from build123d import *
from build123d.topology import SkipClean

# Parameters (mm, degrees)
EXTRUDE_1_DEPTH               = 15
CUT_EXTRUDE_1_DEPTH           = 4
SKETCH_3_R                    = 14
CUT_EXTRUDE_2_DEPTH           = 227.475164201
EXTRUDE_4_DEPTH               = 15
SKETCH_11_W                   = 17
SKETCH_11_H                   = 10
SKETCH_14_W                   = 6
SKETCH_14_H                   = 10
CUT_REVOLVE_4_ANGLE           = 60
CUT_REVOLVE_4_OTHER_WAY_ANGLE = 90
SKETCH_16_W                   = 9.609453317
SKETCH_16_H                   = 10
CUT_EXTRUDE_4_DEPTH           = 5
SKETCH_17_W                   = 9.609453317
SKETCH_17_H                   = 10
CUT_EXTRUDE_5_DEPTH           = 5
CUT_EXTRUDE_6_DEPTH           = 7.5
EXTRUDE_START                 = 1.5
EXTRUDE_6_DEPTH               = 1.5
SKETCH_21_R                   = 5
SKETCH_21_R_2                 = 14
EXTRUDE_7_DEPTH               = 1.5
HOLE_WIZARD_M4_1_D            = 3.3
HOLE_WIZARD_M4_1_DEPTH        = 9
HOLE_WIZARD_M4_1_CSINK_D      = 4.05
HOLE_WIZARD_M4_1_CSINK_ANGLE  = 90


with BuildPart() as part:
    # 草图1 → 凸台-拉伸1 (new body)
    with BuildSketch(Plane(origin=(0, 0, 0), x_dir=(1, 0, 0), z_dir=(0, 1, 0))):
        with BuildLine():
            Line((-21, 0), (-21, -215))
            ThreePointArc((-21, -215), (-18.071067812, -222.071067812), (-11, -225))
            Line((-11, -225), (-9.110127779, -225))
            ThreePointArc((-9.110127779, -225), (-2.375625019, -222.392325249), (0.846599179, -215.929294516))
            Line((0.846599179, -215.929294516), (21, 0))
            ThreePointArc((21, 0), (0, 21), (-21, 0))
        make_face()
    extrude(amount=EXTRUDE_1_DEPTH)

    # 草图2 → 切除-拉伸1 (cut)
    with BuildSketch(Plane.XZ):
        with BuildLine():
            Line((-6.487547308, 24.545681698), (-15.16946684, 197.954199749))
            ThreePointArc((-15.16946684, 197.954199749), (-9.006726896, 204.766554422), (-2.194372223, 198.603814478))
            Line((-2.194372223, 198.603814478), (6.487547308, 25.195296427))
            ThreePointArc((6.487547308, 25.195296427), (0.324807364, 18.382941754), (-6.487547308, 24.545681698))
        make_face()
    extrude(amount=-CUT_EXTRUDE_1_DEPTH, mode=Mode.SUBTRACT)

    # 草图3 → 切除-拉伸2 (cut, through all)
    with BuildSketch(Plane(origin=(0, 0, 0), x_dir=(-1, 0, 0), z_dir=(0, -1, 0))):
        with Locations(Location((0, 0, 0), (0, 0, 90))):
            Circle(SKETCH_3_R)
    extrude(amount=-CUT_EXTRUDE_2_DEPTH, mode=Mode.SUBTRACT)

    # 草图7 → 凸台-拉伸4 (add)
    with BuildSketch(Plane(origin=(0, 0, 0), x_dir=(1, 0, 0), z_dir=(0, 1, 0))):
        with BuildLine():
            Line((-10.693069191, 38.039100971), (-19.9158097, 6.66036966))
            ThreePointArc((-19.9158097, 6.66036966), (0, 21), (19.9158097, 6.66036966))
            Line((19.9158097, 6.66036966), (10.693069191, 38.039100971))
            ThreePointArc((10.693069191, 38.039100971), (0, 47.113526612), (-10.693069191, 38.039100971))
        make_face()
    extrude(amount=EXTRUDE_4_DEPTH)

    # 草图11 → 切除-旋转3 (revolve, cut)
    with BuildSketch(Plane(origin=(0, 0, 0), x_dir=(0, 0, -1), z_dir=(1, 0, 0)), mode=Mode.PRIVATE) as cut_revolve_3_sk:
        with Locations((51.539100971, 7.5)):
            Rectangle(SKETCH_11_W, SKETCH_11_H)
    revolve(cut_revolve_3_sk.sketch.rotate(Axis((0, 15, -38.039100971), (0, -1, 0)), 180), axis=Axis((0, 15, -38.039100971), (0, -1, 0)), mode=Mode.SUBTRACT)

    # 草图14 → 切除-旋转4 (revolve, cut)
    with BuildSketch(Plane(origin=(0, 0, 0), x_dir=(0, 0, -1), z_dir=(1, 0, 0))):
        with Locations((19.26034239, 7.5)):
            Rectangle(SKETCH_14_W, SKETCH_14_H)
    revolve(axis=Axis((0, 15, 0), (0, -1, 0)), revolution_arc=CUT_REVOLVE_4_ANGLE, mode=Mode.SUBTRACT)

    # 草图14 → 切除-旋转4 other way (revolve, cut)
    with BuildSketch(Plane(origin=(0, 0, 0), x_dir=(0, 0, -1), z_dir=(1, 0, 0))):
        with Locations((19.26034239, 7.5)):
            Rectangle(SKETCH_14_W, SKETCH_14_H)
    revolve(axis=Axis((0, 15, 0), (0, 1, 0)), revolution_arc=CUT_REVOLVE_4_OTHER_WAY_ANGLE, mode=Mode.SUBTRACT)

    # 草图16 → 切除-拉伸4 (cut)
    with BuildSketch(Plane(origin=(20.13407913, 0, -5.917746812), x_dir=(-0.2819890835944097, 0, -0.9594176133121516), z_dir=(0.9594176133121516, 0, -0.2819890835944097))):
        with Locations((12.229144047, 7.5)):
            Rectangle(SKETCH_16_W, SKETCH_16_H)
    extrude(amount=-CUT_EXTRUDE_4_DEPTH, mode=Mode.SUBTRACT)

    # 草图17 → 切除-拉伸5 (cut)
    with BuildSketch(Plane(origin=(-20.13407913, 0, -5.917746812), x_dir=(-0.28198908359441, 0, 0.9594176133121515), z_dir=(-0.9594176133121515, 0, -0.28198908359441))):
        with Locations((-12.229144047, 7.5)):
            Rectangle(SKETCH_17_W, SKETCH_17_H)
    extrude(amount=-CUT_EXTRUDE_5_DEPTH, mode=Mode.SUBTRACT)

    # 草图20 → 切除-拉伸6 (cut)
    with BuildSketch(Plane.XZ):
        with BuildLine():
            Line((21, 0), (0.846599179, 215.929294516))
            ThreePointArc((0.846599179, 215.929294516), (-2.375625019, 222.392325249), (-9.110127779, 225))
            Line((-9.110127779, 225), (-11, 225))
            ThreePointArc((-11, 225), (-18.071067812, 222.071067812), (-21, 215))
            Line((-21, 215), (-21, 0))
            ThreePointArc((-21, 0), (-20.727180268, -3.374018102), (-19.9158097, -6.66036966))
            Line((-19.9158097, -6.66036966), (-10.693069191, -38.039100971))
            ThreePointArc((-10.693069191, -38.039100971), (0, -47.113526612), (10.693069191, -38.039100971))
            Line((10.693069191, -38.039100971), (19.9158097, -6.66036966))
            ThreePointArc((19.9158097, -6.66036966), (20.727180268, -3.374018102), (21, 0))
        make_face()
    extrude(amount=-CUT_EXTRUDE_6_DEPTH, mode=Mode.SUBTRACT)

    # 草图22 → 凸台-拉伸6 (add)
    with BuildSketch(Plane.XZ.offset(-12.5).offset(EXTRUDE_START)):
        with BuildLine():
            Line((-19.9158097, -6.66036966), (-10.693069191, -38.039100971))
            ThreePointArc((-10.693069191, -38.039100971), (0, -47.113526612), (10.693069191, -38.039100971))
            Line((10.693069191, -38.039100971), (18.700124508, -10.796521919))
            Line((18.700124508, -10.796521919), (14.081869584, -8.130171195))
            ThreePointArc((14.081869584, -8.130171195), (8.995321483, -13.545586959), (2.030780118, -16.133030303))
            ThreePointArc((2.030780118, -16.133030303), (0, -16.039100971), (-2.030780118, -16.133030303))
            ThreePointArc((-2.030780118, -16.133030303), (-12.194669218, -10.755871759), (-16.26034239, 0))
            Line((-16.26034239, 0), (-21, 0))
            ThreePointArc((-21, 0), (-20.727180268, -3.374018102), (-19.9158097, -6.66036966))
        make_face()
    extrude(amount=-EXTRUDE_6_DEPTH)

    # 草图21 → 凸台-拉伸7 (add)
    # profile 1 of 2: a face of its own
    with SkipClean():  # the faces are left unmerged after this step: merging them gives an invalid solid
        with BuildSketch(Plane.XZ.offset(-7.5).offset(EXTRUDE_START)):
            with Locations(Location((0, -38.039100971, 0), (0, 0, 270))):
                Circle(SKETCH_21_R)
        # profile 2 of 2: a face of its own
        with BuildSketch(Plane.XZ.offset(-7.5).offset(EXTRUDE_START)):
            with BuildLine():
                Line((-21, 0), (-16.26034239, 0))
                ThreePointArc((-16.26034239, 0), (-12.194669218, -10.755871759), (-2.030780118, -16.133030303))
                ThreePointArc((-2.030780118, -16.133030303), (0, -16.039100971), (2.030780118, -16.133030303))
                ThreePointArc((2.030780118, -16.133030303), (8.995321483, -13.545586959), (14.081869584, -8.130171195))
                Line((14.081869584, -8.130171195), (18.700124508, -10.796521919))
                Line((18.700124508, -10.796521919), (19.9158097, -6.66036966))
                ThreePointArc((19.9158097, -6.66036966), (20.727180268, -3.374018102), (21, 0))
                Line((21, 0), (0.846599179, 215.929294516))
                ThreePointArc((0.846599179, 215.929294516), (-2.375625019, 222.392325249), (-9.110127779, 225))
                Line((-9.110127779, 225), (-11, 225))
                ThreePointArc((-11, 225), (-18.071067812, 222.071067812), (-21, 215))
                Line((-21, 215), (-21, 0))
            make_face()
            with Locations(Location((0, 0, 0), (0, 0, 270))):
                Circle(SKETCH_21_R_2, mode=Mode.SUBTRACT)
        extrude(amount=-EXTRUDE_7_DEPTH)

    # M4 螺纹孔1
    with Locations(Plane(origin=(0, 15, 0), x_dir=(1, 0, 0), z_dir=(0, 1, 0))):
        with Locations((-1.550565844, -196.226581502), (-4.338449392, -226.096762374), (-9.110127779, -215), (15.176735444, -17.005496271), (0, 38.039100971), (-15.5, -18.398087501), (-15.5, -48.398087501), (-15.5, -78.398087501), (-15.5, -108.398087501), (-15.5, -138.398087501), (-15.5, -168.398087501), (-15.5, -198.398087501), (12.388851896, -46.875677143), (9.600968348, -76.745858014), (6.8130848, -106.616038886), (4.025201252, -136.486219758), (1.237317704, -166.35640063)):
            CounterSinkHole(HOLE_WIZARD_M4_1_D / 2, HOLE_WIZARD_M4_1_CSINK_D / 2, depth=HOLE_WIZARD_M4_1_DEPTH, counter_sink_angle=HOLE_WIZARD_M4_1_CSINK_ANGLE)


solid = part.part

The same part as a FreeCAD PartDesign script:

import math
import FreeCAD as App
import Part
import Sketcher

V = App.Vector
Q = App.Units.Quantity

doc = App.newDocument("Part")
params = doc.addObject("Spreadsheet::Sheet", "Params")
for row, (alias, value) in enumerate([
    ("sketch1_radius", "10 mm"),
    ("sketch1_radius2", "21 mm"),
    ("sketch1_height", "215 mm"),
    ("pad1_length", "15 mm"),
    ("pocket1_length", "4 mm"),
    ("sketch3_diameter", "28 mm"),
    ("sketch4_radius", "21 mm"),
    ("pad2_length", "15 mm"),
    ("sketch5_width", "10 mm"),
    ("sketch5_height", "17 mm"),
    ("groove_angle", "360 deg"),
    ("sketch6_width", "10 mm"),
    ("sketch6_height", "6 mm"),
    ("groove2_angle", "60 deg"),
    ("sketch7_width", "10 mm"),
    ("sketch7_height", "6 mm"),
    ("groove3_angle", "90 deg"),
    ("sketch8_height", "10 mm"),
    ("pocket3_length", "5 mm"),
    ("sketch9_height", "10 mm"),
    ("pocket4_length", "5 mm"),
    ("sketch10_radius", "10 mm"),
    ("sketch10_radius2", "21 mm"),
    ("sketch10_height", "215 mm"),
    ("pocket5_length", "7.5 mm"),
    ("sketch11_radius", "22 mm"),
    ("sketch11_radius2", "21 mm"),
    ("pad3_length", "1.5 mm"),
    ("sketch12_diameter", "10 mm"),
    ("sketch12_diameter2", "28 mm"),
    ("sketch12_radius", "22 mm"),
    ("sketch12_radius2", "21 mm"),
    ("sketch12_radius3", "10 mm"),
    ("pad4_length", "1.5 mm"),
    ("sketch13_diameter", "3.3 mm"),
    ("hole_diameter", "3.3 mm"),
    ("hole_depth", "9 mm"),
    ("hole_csink_diameter", "4.05 mm"),
], start=1):
    params.set(f"A{row}", alias)
    params.set(f"B{row}", "=" + value)
    params.setAlias(f"B{row}", alias)

body = doc.addObject("PartDesign::Body", "Body")

# Sketch on XZ plane
sketch1 = doc.addObject("Sketcher::SketchObject", "Sketch")
body.addObject(sketch1)
sketch1.AttachmentSupport = (doc.XZ_Plane, [""])
sketch1.MapMode = "FlatFace"
sketch1.addGeometry([
    Part.LineSegment(V(-21, 0, 0), V(-21, 215, 0)),  # 0
    Part.ArcOfCircle(Part.Circle(V(-11, 215, 0), V(0, 0, 1), 10), math.radians(90), math.radians(180)),  # 1
    Part.LineSegment(V(-11, 225, 0), V(-9.1, 225, 0)),  # 2
    Part.ArcOfCircle(Part.Circle(V(-9.1, 215, 0), V(0, 0, 1), 10), math.radians(5), math.radians(90)),  # 3
    Part.LineSegment(V(0.8, 215.9, 0), V(21, 0, 0)),  # 4
    Part.ArcOfCircle(Part.Circle(V(0, 0, 0), V(0, 0, 1), 21), math.radians(180), math.radians(360)),  # 5
], False)
sketch1.addConstraint([
    Sketcher.Constraint("Tangent", 0, 2, 1, 2),
    Sketcher.Constraint("Tangent", 1, 1, 2, 1),
    Sketcher.Constraint("Tangent", 2, 2, 3, 2),
    Sketcher.Constraint("Tangent", 3, 1, 4, 1),
    Sketcher.Constraint("Coincident", 4, 2, 5, 2),
    Sketcher.Constraint("Tangent", 5, 1, 0, 1),
    Sketcher.Constraint("Vertical", 0),
    Sketcher.Constraint("Horizontal", 2),
    Sketcher.Constraint("Coincident", 5, 3, -1, 1),
    Sketcher.Constraint("Equal", 1, 3),
    Sketcher.Constraint("PointOnObject", 4, 2, -1),
    Sketcher.Constraint("Radius", 1, 10.0),
    Sketcher.Constraint("Radius", 5, 21.0),
    Sketcher.Constraint("DistanceY", 0, 1, 0, 2, 215.0),
    Sketcher.Constraint("DistanceX", -1, 1, 3, 1, 0.846599),
])
sketch1.setExpression("Constraints[11]", "Params.sketch1_radius")
sketch1.setExpression("Constraints[12]", "Params.sketch1_radius2")
sketch1.setExpression("Constraints[13]", "Params.sketch1_height")
pad1 = doc.addObject("PartDesign::Pad", "Pad")
body.addObject(pad1)
pad1.Profile = sketch1
pad1.setExpression("Length", "Params.pad1_length")
pad1.Reversed = True

# Sketch on XZ plane
sketch2 = doc.addObject("Sketcher::SketchObject", "Sketch001")
body.addObject(sketch2)
sketch2.AttachmentSupport = (doc.XZ_Plane, [""])
sketch2.MapMode = "FlatFace"
sketch2.addGeometry([
    Part.LineSegment(V(-15, 198, 0), V(-6, 25, 0)),
    Part.ArcOfCircle(Part.Circle(V(0, 25, 0), V(0, 0, 1), 6), math.radians(-177), math.radians(3)),
    Part.LineSegment(V(6, 25, 0), V(-2, 199, 0)),
    Part.ArcOfCircle(Part.Circle(V(-9, 198, 0), V(0, 0, 1), 6), math.radians(3), math.radians(183)),
], False)
sketch2.addConstraint([
    Sketcher.Constraint("Tangent", 0, 2, 1, 1),
    Sketcher.Constraint("Tangent", 1, 2, 2, 1),
    Sketcher.Constraint("Tangent", 2, 2, 3, 1),
    Sketcher.Constraint("Tangent", 3, 2, 0, 1),
    Sketcher.Constraint("Equal", 1, 3),
    Sketcher.Constraint("PointOnObject", 1, 3, -2),
    Sketcher.Constraint("Radius", 1, 6.495673),
    Sketcher.Constraint("DistanceY", -1, 1, 3, 2, 197.9542),
    Sketcher.Constraint("DistanceY", -1, 1, 1, 3, 24.870489),
    Sketcher.Constraint("DistanceX", 3, 3, -1, 1, 8.68192),
])
pocket1 = doc.addObject("PartDesign::Pocket", "Pocket")
body.addObject(pocket1)
pocket1.Profile = sketch2
pocket1.setExpression("Length", "Params.pocket1_length")

# Sketch on XZ plane
sketch3 = doc.addObject("Sketcher::SketchObject", "Sketch002")
body.addObject(sketch3)
sketch3.AttachmentSupport = (doc.XZ_Plane, [""])
sketch3.MapMode = "FlatFace"
sketch3.addGeometry(Part.Circle(V(0, 0, 0), V(0, 0, 1), 14), False)
sketch3.addConstraint([
    Sketcher.Constraint("Coincident", 0, 3, -1, 1),
    Sketcher.Constraint("Diameter", 0, 28.0),
])
sketch3.setExpression("Constraints[1]", "Params.sketch3_diameter")
pocket2 = doc.addObject("PartDesign::Pocket", "Pocket001")
body.addObject(pocket2)
pocket2.Profile = sketch3
pocket2.Type = "ThroughAll"

# Sketch on XZ plane
sketch4 = doc.addObject("Sketcher::SketchObject", "Sketch003")
body.addObject(sketch4)
sketch4.AttachmentSupport = (doc.XZ_Plane, [""])
sketch4.MapMode = "FlatFace"
sketch4.addGeometry([
    Part.LineSegment(V(-11, -38, 0), V(-20, -7, 0)),
    Part.ArcOfCircle(Part.Circle(V(0, 0, 0), V(0, 0, 1), 21), math.radians(-162), math.radians(-18)),
    Part.LineSegment(V(20, -7, 0), V(11, -38, 0)),
    Part.ArcOfCircle(Part.Circle(V(0, -36, 0), V(0, 0, 1), 11), math.radians(-171), math.radians(-9)),
], False)
sketch4.addConstraint([
    Sketcher.Constraint("Coincident", 0, 2, 1, 1),
    Sketcher.Constraint("Coincident", 1, 2, 2, 1),
    Sketcher.Constraint("Coincident", 2, 2, 3, 2),
    Sketcher.Constraint("Coincident", 3, 1, 0, 1),
    Sketcher.Constraint("Coincident", 1, 3, -1, 1),
    Sketcher.Constraint("Symmetric", 2, 2, 3, 1, -2),
    Sketcher.Constraint("Horizontal", 0, 2, 1, 2),
    Sketcher.Constraint("Radius", 1, 21.0),
    Sketcher.Constraint("Radius", 3, 10.837431),
    Sketcher.Constraint("DistanceY", 2, 2, -1, 1, 38.039101),
    Sketcher.Constraint("Distance", 0, 32.70602),
    Sketcher.Constraint("DistanceX", 0, 2, -1, 1, 19.91581),
])
sketch4.setExpression("Constraints[7]", "Params.sketch4_radius")
pad2 = doc.addObject("PartDesign::Pad", "Pad001")
body.addObject(pad2)
pad2.Profile = sketch4
pad2.setExpression("Length", "Params.pad2_length")
pad2.Reversed = True

# Sketch on YZ plane
sketch5 = doc.addObject("Sketcher::SketchObject", "Sketch004")
body.addObject(sketch5)
sketch5.AttachmentSupport = (doc.YZ_Plane, [""])
sketch5.MapMode = "FlatFace"
sketch5.addGeometry([
    Part.LineSegment(V(12, -43, 0), V(2, -43, 0)),
    Part.LineSegment(V(2, -43, 0), V(2, -60, 0)),
    Part.LineSegment(V(2, -60, 0), V(12, -60, 0)),
    Part.LineSegment(V(12, -60, 0), V(12, -43, 0)),
], False)
sketch5.addGeometry(Part.LineSegment(V(12, -38, 0), V(2, -38, 0)), True)  # axis
sketch5.addConstraint([
    Sketcher.Constraint("Coincident", 0, 2, 1, 1),
    Sketcher.Constraint("Coincident", 1, 2, 2, 1),
    Sketcher.Constraint("Coincident", 2, 2, 3, 1),
    Sketcher.Constraint("Coincident", 3, 2, 0, 1),
    Sketcher.Constraint("Horizontal", 0),
    Sketcher.Constraint("Vertical", 1),
    Sketcher.Constraint("Horizontal", 2),
    Sketcher.Constraint("Vertical", 3),
    Sketcher.Constraint("Horizontal", 4),
    Sketcher.Constraint("Vertical", 3, 2, 4, 1),
    Sketcher.Constraint("Vertical", 1, 2, 4, 2),
    Sketcher.Constraint("DistanceX", 0, 2, 0, 1, 10.0),
    Sketcher.Constraint("DistanceY", 1, 2, 1, 1, 17.0),
    Sketcher.Constraint("DistanceY", 3, 2, 4, 1, 5.0),
    Sketcher.Constraint("DistanceX", -1, 1, 0, 2, 2.5),
    Sketcher.Constraint("DistanceY", 0, 2, -1, 1, 43.039101),
])
sketch5.setExpression("Constraints[11]", "Params.sketch5_width")
sketch5.setExpression("Constraints[12]", "Params.sketch5_height")
groove = doc.addObject("PartDesign::Groove", "Groove")
body.addObject(groove)
groove.Profile = sketch5
groove.ReferenceAxis = (sketch5, ["Axis0"])
groove.setExpression("Angle", "Params.groove_angle")

# Sketch on YZ plane
sketch6 = doc.addObject("Sketcher::SketchObject", "Sketch005")
body.addObject(sketch6)
sketch6.AttachmentSupport = (doc.YZ_Plane, [""])
sketch6.MapMode = "FlatFace"
sketch6.addGeometry([
    Part.LineSegment(V(12, -16, 0), V(2, -16, 0)),
    Part.LineSegment(V(2, -16, 0), V(2, -22, 0)),
    Part.LineSegment(V(2, -22, 0), V(12, -22, 0)),
    Part.LineSegment(V(12, -22, 0), V(12, -16, 0)),
], False)
sketch6.addConstraint([
    Sketcher.Constraint("Coincident", 0, 2, 1, 1),
    Sketcher.Constraint("Coincident", 1, 2, 2, 1),
    Sketcher.Constraint("Coincident", 2, 2, 3, 1),
    Sketcher.Constraint("Coincident", 3, 2, 0, 1),
    Sketcher.Constraint("Horizontal", 0),
    Sketcher.Constraint("Vertical", 1),
    Sketcher.Constraint("Horizontal", 2),
    Sketcher.Constraint("Vertical", 3),
    Sketcher.Constraint("DistanceX", 0, 2, 0, 1, 10.0),
    Sketcher.Constraint("DistanceY", 1, 2, 1, 1, 6.0),
    Sketcher.Constraint("DistanceX", -1, 1, 0, 2, 2.5),
    Sketcher.Constraint("DistanceY", 0, 2, -1, 1, 16.260342),
])
sketch6.setExpression("Constraints[8]", "Params.sketch6_width")
sketch6.setExpression("Constraints[9]", "Params.sketch6_height")
groove2 = doc.addObject("PartDesign::Groove", "Groove001")
body.addObject(groove2)
groove2.Profile = sketch6
groove2.ReferenceAxis = (sketch6, ["H_Axis"])
groove2.setExpression("Angle", "Params.groove2_angle")
groove2.Reversed = True

# Sketch on YZ plane
sketch7 = doc.addObject("Sketcher::SketchObject", "Sketch006")
body.addObject(sketch7)
sketch7.AttachmentSupport = (doc.YZ_Plane, [""])
sketch7.MapMode = "FlatFace"
sketch7.addGeometry([
    Part.LineSegment(V(12, -16, 0), V(2, -16, 0)),
    Part.LineSegment(V(2, -16, 0), V(2, -22, 0)),
    Part.LineSegment(V(2, -22, 0), V(12, -22, 0)),
    Part.LineSegment(V(12, -22, 0), V(12, -16, 0)),
], False)
sketch7.addConstraint([
    Sketcher.Constraint("Coincident", 0, 2, 1, 1),
    Sketcher.Constraint("Coincident", 1, 2, 2, 1),
    Sketcher.Constraint("Coincident", 2, 2, 3, 1),
    Sketcher.Constraint("Coincident", 3, 2, 0, 1),
    Sketcher.Constraint("Horizontal", 0),
    Sketcher.Constraint("Vertical", 1),
    Sketcher.Constraint("Horizontal", 2),
    Sketcher.Constraint("Vertical", 3),
    Sketcher.Constraint("DistanceX", 0, 2, 0, 1, 10.0),
    Sketcher.Constraint("DistanceY", 1, 2, 1, 1, 6.0),
    Sketcher.Constraint("DistanceX", -1, 1, 0, 2, 2.5),
    Sketcher.Constraint("DistanceY", 0, 2, -1, 1, 16.260342),
])
sketch7.setExpression("Constraints[8]", "Params.sketch7_width")
sketch7.setExpression("Constraints[9]", "Params.sketch7_height")
groove3 = doc.addObject("PartDesign::Groove", "Groove002")
body.addObject(groove3)
groove3.Profile = sketch7
groove3.ReferenceAxis = (sketch7, ["H_Axis"])
groove3.setExpression("Angle", "Params.groove3_angle")

# Sketch on an angled plane
sketch8 = doc.addObject("Sketcher::SketchObject", "Sketch007")
body.addObject(sketch8)
sketch8.Placement = App.Placement(V(20.134079, 0, -5.917747), App.Rotation(V(-0.281989084, 0, -0.959417613), V(0, 1, 0), V(0.959417613, 0, -0.281989084), "ZXY"))
sketch8.addGeometry([
    Part.LineSegment(V(7, 12, 0), V(7, 2, 0)),
    Part.LineSegment(V(7, 2, 0), V(17, 2, 0)),
    Part.LineSegment(V(17, 2, 0), V(17, 12, 0)),
    Part.LineSegment(V(17, 12, 0), V(7, 12, 0)),
], False)
sketch8.addConstraint([
    Sketcher.Constraint("Coincident", 0, 2, 1, 1),
    Sketcher.Constraint("Coincident", 1, 2, 2, 1),
    Sketcher.Constraint("Coincident", 2, 2, 3, 1),
    Sketcher.Constraint("Coincident", 3, 2, 0, 1),
    Sketcher.Constraint("Vertical", 0),
    Sketcher.Constraint("Horizontal", 1),
    Sketcher.Constraint("Vertical", 2),
    Sketcher.Constraint("Horizontal", 3),
    Sketcher.Constraint("DistanceY", 0, 2, 0, 1, 10.0),
    Sketcher.Constraint("DistanceY", -1, 1, 0, 2, 2.5),
    Sketcher.Constraint("DistanceX", 1, 1, 1, 2, 9.609453),
    Sketcher.Constraint("DistanceX", -1, 1, 1, 2, 17.033871),
])
sketch8.setExpression("Constraints[8]", "Params.sketch8_height")
pocket3 = doc.addObject("PartDesign::Pocket", "Pocket002")
body.addObject(pocket3)
pocket3.Profile = sketch8
pocket3.setExpression("Length", "Params.pocket3_length")

# Sketch on an angled plane
sketch9 = doc.addObject("Sketcher::SketchObject", "Sketch008")
body.addObject(sketch9)
sketch9.Placement = App.Placement(V(-20.134079, 0, -5.917747), App.Rotation(V(-0.281989084, 0, 0.959417613), V(0, 1, 0), V(-0.959417613, 0, -0.281989084), "ZXY"))
sketch9.addGeometry([
    Part.LineSegment(V(-17, 12, 0), V(-17, 2, 0)),
    Part.LineSegment(V(-17, 2, 0), V(-7, 2, 0)),
    Part.LineSegment(V(-7, 2, 0), V(-7, 12, 0)),
    Part.LineSegment(V(-7, 12, 0), V(-17, 12, 0)),
], False)
sketch9.addConstraint([
    Sketcher.Constraint("Coincident", 0, 2, 1, 1),
    Sketcher.Constraint("Coincident", 1, 2, 2, 1),
    Sketcher.Constraint("Coincident", 2, 2, 3, 1),
    Sketcher.Constraint("Coincident", 3, 2, 0, 1),
    Sketcher.Constraint("Vertical", 0),
    Sketcher.Constraint("Horizontal", 1),
    Sketcher.Constraint("Vertical", 2),
    Sketcher.Constraint("Horizontal", 3),
    Sketcher.Constraint("DistanceY", 0, 2, 0, 1, 10.0),
    Sketcher.Constraint("DistanceY", -1, 1, 0, 2, 2.5),
    Sketcher.Constraint("DistanceX", 1, 1, 1, 2, 9.609453),
    Sketcher.Constraint("DistanceX", 0, 2, -1, 1, 17.033871),
])
sketch9.setExpression("Constraints[8]", "Params.sketch9_height")
pocket4 = doc.addObject("PartDesign::Pocket", "Pocket003")
body.addObject(pocket4)
pocket4.Profile = sketch9
pocket4.setExpression("Length", "Params.pocket4_length")

# Sketch on XZ plane
sketch10 = doc.addObject("Sketcher::SketchObject", "Sketch009")
body.addObject(sketch10)
sketch10.AttachmentSupport = (doc.XZ_Plane, [""])
sketch10.MapMode = "FlatFace"
sketch10.addGeometry([
    Part.LineSegment(V(21, 0, 0), V(0.8, 215.9, 0)),  # 0
    Part.ArcOfCircle(Part.Circle(V(-9.1, 215, 0), V(0, 0, 1), 10), math.radians(5), math.radians(90)),  # 1
    Part.LineSegment(V(-9.1, 225, 0), V(-11, 225, 0)),  # 2
    Part.ArcOfCircle(Part.Circle(V(-11, 215, 0), V(0, 0, 1), 10), math.radians(90), math.radians(180)),  # 3
    Part.LineSegment(V(-21, 215, 0), V(-21, 0, 0)),  # 4
    Part.ArcOfCircle(Part.Circle(V(0, 0, 0), V(0, 0, 1), 21), math.radians(180), math.radians(198.49)),  # 5
    Part.LineSegment(V(-19.9, -6.7, 0), V(-10.7, -38, 0)),  # 6
    Part.ArcOfCircle(Part.Circle(V(0, -36.3, 0), V(0, 0, 1), 10.8), math.radians(-171), math.radians(-9)),  # 7
    Part.LineSegment(V(10.7, -38, 0), V(19.9, -6.7, 0)),  # 8
    Part.ArcOfCircle(Part.Circle(V(0, 0, 0), V(0, 0, 1), 21), math.radians(-18.49), math.radians(0)),  # 9
], False)
sketch10.addConstraint([
    Sketcher.Constraint("Tangent", 0, 2, 1, 1),
    Sketcher.Constraint("Tangent", 1, 2, 2, 1),
    Sketcher.Constraint("Tangent", 2, 2, 3, 1),
    Sketcher.Constraint("Tangent", 3, 2, 4, 1),
    Sketcher.Constraint("Tangent", 4, 2, 5, 1),
    Sketcher.Constraint("Coincident", 5, 2, 6, 1),
    Sketcher.Constraint("Coincident", 6, 2, 7, 1),
    Sketcher.Constraint("Coincident", 7, 2, 8, 1),
    Sketcher.Constraint("Coincident", 8, 2, 9, 1),
    Sketcher.Constraint("Coincident", 9, 2, 0, 1),
    Sketcher.Constraint("Horizontal", 2),
    Sketcher.Constraint("Vertical", 4),
    Sketcher.Constraint("Coincident", 5, 3, -1, 1),
    Sketcher.Constraint("Coincident", 9, 3, -1, 1),
    Sketcher.Constraint("Equal", 1, 3),
    Sketcher.Constraint("Equal", 5, 9),
    Sketcher.Constraint("Symmetric", 6, 2, 7, 2, -2),
    Sketcher.Constraint("PointOnObject", 9, 2, -1),
    Sketcher.Constraint("Horizontal", 5, 2, 8, 2),
    Sketcher.Constraint("Radius", 1, 10.0),
    Sketcher.Constraint("Radius", 5, 21.0),
    Sketcher.Constraint("DistanceY", 4, 2, 4, 1, 215.0),
    Sketcher.Constraint("Radius", 7, 10.837431),
    Sketcher.Constraint("DistanceX", -1, 1, 0, 2, 0.846599),
    Sketcher.Constraint("DistanceY", 6, 2, -1, 1, 38.039101),
    Sketcher.Constraint("Distance", 6, 32.70602),
    Sketcher.Constraint("DistanceX", 5, 2, -1, 1, 19.91581),
])
sketch10.setExpression("Constraints[19]", "Params.sketch10_radius")
sketch10.setExpression("Constraints[20]", "Params.sketch10_radius2")
sketch10.setExpression("Constraints[21]", "Params.sketch10_height")
pocket5 = doc.addObject("PartDesign::Pocket", "Pocket004")
body.addObject(pocket5)
pocket5.Profile = sketch10
pocket5.setExpression("Length", "Params.pocket5_length")

# Sketch on XZ plane
sketch11 = doc.addObject("Sketcher::SketchObject", "Sketch010")
body.addObject(sketch11)
sketch11.AttachmentSupport = (doc.XZ_Plane, [""])
sketch11.MapMode = "FlatFace"
sketch11.AttachmentOffset = App.Placement(V(0, 0, -11), App.Rotation())
sketch11.addGeometry([
    Part.LineSegment(V(-19.9, -6.7, 0), V(-10.7, -38, 0)),  # 0
    Part.ArcOfCircle(Part.Circle(V(0, -36.3, 0), V(0, 0, 1), 10.8), math.radians(-171), math.radians(-9)),  # 1
    Part.LineSegment(V(10.7, -38, 0), V(18.7, -10.8, 0)),  # 2
    Part.LineSegment(V(18.7, -10.8, 0), V(14.1, -8.1, 0)),  # 3
    Part.ArcOfCircle(Part.Circle(V(0, 0, 0), V(0, 0, 1), 16.3), math.radians(-83), math.radians(-30)),  # 4
    Part.ArcOfCircle(Part.Circle(V(0, -38, 0), V(0, 0, 1), 22), math.radians(84.7), math.radians(95.3)),  # 5
    Part.ArcOfCircle(Part.Circle(V(0, 0, 0), V(0, 0, 1), 16.3), math.radians(-180), math.radians(-97)),  # 6
    Part.LineSegment(V(-16.3, 0, 0), V(-21, 0, 0)),  # 7
    Part.ArcOfCircle(Part.Circle(V(0, 0, 0), V(0, 0, 1), 21), math.radians(180), math.radians(198.49)),  # 8
], False)
sketch11.addConstraint([
    Sketcher.Constraint("Coincident", 0, 2, 1, 1),
    Sketcher.Constraint("Coincident", 1, 2, 2, 1),
    Sketcher.Constraint("Coincident", 2, 2, 3, 1),
    Sketcher.Constraint("Coincident", 3, 2, 4, 2),
    Sketcher.Constraint("Coincident", 4, 1, 5, 1),
    Sketcher.Constraint("Coincident", 5, 2, 6, 2),
    Sketcher.Constraint("Coincident", 6, 1, 7, 1),
    Sketcher.Constraint("Coincident", 7, 2, 8, 1),
    Sketcher.Constraint("Coincident", 8, 2, 0, 1),
    Sketcher.Constraint("Horizontal", 7),
    Sketcher.Constraint("Coincident", 4, 3, -1, 1),
    Sketcher.Constraint("Coincident", 6, 3, -1, 1),
    Sketcher.Constraint("Coincident", 8, 3, -1, 1),
    Sketcher.Constraint("Equal", 4, 6),
    Sketcher.Constraint("Symmetric", 0, 2, 1, 2, -2),
    Sketcher.Constraint("PointOnObject", 5, 3, -2),
    Sketcher.Constraint("PointOnObject", 6, 1, -1),
    Sketcher.Constraint("Horizontal", 5, 3, 0, 2),
    Sketcher.Constraint("Radius", 5, 22.0),
    Sketcher.Constraint("Radius", 8, 21.0),
    Sketcher.Constraint("Angle", 3, Q("150 deg")),
    Sketcher.Constraint("Radius", 1, 10.837431),
    Sketcher.Constraint("Radius", 4, 16.260342),
    Sketcher.Constraint("Distance", 3, 5.332701),
    Sketcher.Constraint("DistanceY", 5, 3, -1, 1, 38.039101),
    Sketcher.Constraint("DistanceX", 1, 2, 3, 2, 3.3888),
    Sketcher.Constraint("Distance", 0, 32.70602),
    Sketcher.Constraint("DistanceX", 0, 2, -1, 1, 10.693069),
])
sketch11.setExpression("Constraints[18]", "Params.sketch11_radius")
sketch11.setExpression("Constraints[19]", "Params.sketch11_radius2")
pad3 = doc.addObject("PartDesign::Pad", "Pad002")
body.addObject(pad3)
pad3.Profile = sketch11
pad3.setExpression("Length", "Params.pad3_length")
pad3.Reversed = True

# Sketch on XZ plane
sketch12 = doc.addObject("Sketcher::SketchObject", "Sketch011")
body.addObject(sketch12)
sketch12.AttachmentSupport = (doc.XZ_Plane, [""])
sketch12.MapMode = "FlatFace"
sketch12.AttachmentOffset = App.Placement(V(0, 0, -6), App.Rotation())
sketch12.addGeometry([
    Part.Circle(V(0, -38, 0), V(0, 0, 1), 5),  # 0
    Part.LineSegment(V(-21, 0, 0), V(-16.3, 0, 0)),  # 1
    Part.ArcOfCircle(Part.Circle(V(0, 0, 0), V(0, 0, 1), 16.3), math.radians(-180), math.radians(-97)),  # 2
    Part.ArcOfCircle(Part.Circle(V(0, -38, 0), V(0, 0, 1), 22), math.radians(84.7), math.radians(95.3)),  # 3
    Part.ArcOfCircle(Part.Circle(V(0, 0, 0), V(0, 0, 1), 16.3), math.radians(-83), math.radians(-30)),  # 4
    Part.LineSegment(V(14.1, -8.1, 0), V(18.7, -10.8, 0)),  # 5
    Part.LineSegment(V(18.7, -10.8, 0), V(19.9, -6.7, 0)),  # 6
    Part.ArcOfCircle(Part.Circle(V(0, 0, 0), V(0, 0, 1), 21), math.radians(-18.49), math.radians(0)),  # 7
    Part.LineSegment(V(21, 0, 0), V(0.8, 215.9, 0)),  # 8
    Part.ArcOfCircle(Part.Circle(V(-9.1, 215, 0), V(0, 0, 1), 10), math.radians(5), math.radians(90)),  # 9
    Part.LineSegment(V(-9.1, 225, 0), V(-11, 225, 0)),  # 10
    Part.ArcOfCircle(Part.Circle(V(-11, 215, 0), V(0, 0, 1), 10), math.radians(90), math.radians(180)),  # 11
    Part.LineSegment(V(-21, 215, 0), V(-21, 0, 0)),  # 12
    Part.Circle(V(0, 0, 0), V(0, 0, 1), 14),  # 13
], False)
sketch12.addConstraint([
    Sketcher.Constraint("Coincident", 1, 2, 2, 1),
    Sketcher.Constraint("Coincident", 2, 2, 3, 2),
    Sketcher.Constraint("Coincident", 3, 1, 4, 1),
    Sketcher.Constraint("Coincident", 4, 2, 5, 1),
    Sketcher.Constraint("Coincident", 5, 2, 6, 1),
    Sketcher.Constraint("Coincident", 6, 2, 7, 1),
    Sketcher.Constraint("Coincident", 7, 2, 8, 1),
    Sketcher.Constraint("Tangent", 8, 2, 9, 1),
    Sketcher.Constraint("Tangent", 9, 2, 10, 1),
    Sketcher.Constraint("Tangent", 10, 2, 11, 1),
    Sketcher.Constraint("Tangent", 11, 2, 12, 1),
    Sketcher.Constraint("Coincident", 12, 2, 1, 1),
    Sketcher.Constraint("Horizontal", 1),
    Sketcher.Constraint("Horizontal", 10),
    Sketcher.Constraint("Vertical", 12),
    Sketcher.Constraint("Coincident", 2, 3, -1, 1),
    Sketcher.Constraint("Coincident", 4, 3, -1, 1),
    Sketcher.Constraint("Coincident", 7, 3, -1, 1),
    Sketcher.Constraint("Coincident", 13, 3, -1, 1),
    Sketcher.Constraint("Coincident", 3, 3, 0, 3),
    Sketcher.Constraint("Equal", 2, 4),
    Sketcher.Constraint("Equal", 9, 11),
    Sketcher.Constraint("Symmetric", 7, 2, 12, 2, -1, 1),
    Sketcher.Constraint("PointOnObject", 0, 3, -2),
    Sketcher.Constraint("PointOnObject", 1, 2, -1),
    Sketcher.Constraint("Diameter", 0, 10.0),
    Sketcher.Constraint("Diameter", 13, 28.0),
    Sketcher.Constraint("Radius", 3, 22.0),
    Sketcher.Constraint("Radius", 7, 21.0),
    Sketcher.Constraint("Radius", 9, 10.0),
    Sketcher.Constraint("DistanceY", 12, 2, 12, 1, 215.0),
    Sketcher.Constraint("Angle", 5, Q("-30 deg")),
    Sketcher.Constraint("Radius", 2, 16.260342),
    Sketcher.Constraint("Distance", 5, 5.332701),
    Sketcher.Constraint("DistanceY", 0, 3, -1, 1, 38.039101),
    Sketcher.Constraint("DistanceX", -1, 1, 8, 2, 0.846599),
    Sketcher.Constraint("DistanceY", 4, 2, 6, 2, 1.469802),
    Sketcher.Constraint("DistanceX", -1, 1, 4, 2, 14.08187),
])
sketch12.setExpression("Constraints[25]", "Params.sketch12_diameter")
sketch12.setExpression("Constraints[26]", "Params.sketch12_diameter2")
sketch12.setExpression("Constraints[27]", "Params.sketch12_radius")
sketch12.setExpression("Constraints[28]", "Params.sketch12_radius2")
sketch12.setExpression("Constraints[29]", "Params.sketch12_radius3")
pad4 = doc.addObject("PartDesign::Pad", "Pad003")
body.addObject(pad4)
pad4.Profile = sketch12
pad4.setExpression("Length", "Params.pad4_length")
pad4.Reversed = True

# Sketch on XZ plane
sketch13 = doc.addObject("Sketcher::SketchObject", "Sketch012")
body.addObject(sketch13)
sketch13.AttachmentSupport = (doc.XZ_Plane, [""])
sketch13.MapMode = "FlatFace"
sketch13.AttachmentOffset = App.Placement(V(0, 0, -15), App.Rotation())
sketch13.addGeometry([
    Part.Circle(V(-1.6, 196.2, 0), V(0, 0, 1), 1.6),  # 0
    Part.Circle(V(-4.3, 226.1, 0), V(0, 0, 1), 1.6),  # 1
    Part.Circle(V(-9.1, 215, 0), V(0, 0, 1), 1.6),  # 2
    Part.Circle(V(15.2, 17, 0), V(0, 0, 1), 1.6),  # 3
    Part.Circle(V(0, -38, 0), V(0, 0, 1), 1.6),  # 4
    Part.Circle(V(-15.5, 18.4, 0), V(0, 0, 1), 1.6),  # 5
    Part.Circle(V(-15.5, 48.4, 0), V(0, 0, 1), 1.6),  # 6
    Part.Circle(V(-15.5, 78.4, 0), V(0, 0, 1), 1.6),  # 7
    Part.Circle(V(-15.5, 108.4, 0), V(0, 0, 1), 1.6),  # 8
    Part.Circle(V(-15.5, 138.4, 0), V(0, 0, 1), 1.6),  # 9
    Part.Circle(V(-15.5, 168.4, 0), V(0, 0, 1), 1.6),  # 10
    Part.Circle(V(-15.5, 198.4, 0), V(0, 0, 1), 1.6),  # 11
    Part.Circle(V(12.4, 46.9, 0), V(0, 0, 1), 1.6),  # 12
    Part.Circle(V(9.6, 76.7, 0), V(0, 0, 1), 1.6),  # 13
    Part.Circle(V(6.8, 106.6, 0), V(0, 0, 1), 1.6),  # 14
    Part.Circle(V(4, 136.5, 0), V(0, 0, 1), 1.6),  # 15
    Part.Circle(V(1.2, 166.4, 0), V(0, 0, 1), 1.6),  # 16
], False)
sketch13.addConstraint([
    Sketcher.Constraint("Equal", 0, 1),
    Sketcher.Constraint("Equal", 1, 2),
    Sketcher.Constraint("Equal", 2, 3),
    Sketcher.Constraint("Equal", 3, 4),
    Sketcher.Constraint("Equal", 4, 5),
    Sketcher.Constraint("Equal", 5, 6),
    Sketcher.Constraint("Equal", 6, 7),
    Sketcher.Constraint("Equal", 7, 8),
    Sketcher.Constraint("Equal", 8, 9),
    Sketcher.Constraint("Equal", 9, 10),
    Sketcher.Constraint("Equal", 10, 11),
    Sketcher.Constraint("Equal", 11, 12),
    Sketcher.Constraint("Equal", 12, 13),
    Sketcher.Constraint("Equal", 13, 14),
    Sketcher.Constraint("Equal", 14, 15),
    Sketcher.Constraint("Equal", 15, 16),
    Sketcher.Constraint("PointOnObject", 4, 3, -2),
    Sketcher.Constraint("Vertical", 5, 3, 6, 3),
    Sketcher.Constraint("Vertical", 6, 3, 7, 3),
    Sketcher.Constraint("Vertical", 7, 3, 8, 3),
    Sketcher.Constraint("Vertical", 8, 3, 9, 3),
    Sketcher.Constraint("Vertical", 9, 3, 10, 3),
    Sketcher.Constraint("Vertical", 10, 3, 11, 3),
    Sketcher.Constraint("Diameter", 0, 3.3),
    Sketcher.Constraint("DistanceY", -1, 1, 2, 3, 215.0),
    Sketcher.Constraint("DistanceY", 5, 3, 6, 3, 30.0),
    Sketcher.Constraint("DistanceY", 6, 3, 7, 3, 30.0),
    Sketcher.Constraint("DistanceY", 7, 3, 8, 3, 30.0),
    Sketcher.Constraint("DistanceY", 8, 3, 9, 3, 30.0),
    Sketcher.Constraint("DistanceY", 9, 3, 10, 3, 30.0),
    Sketcher.Constraint("DistanceY", 10, 3, 11, 3, 30.0),
    Sketcher.Constraint("DistanceX", 5, 3, -1, 1, 15.5),
    Sketcher.Constraint("DistanceY", 4, 3, -1, 1, 38.039101),
    Sketcher.Constraint("DistanceX", -1, 1, 15, 3, 4.025201),
    Sketcher.Constraint("DistanceY", -1, 1, 16, 3, 166.356401),
    Sketcher.Constraint("DistanceX", 0, 3, 3, 3, 16.727301),
    Sketcher.Constraint("DistanceY", -1, 1, 0, 3, 196.226582),
    Sketcher.Constraint("DistanceX", 1, 3, -1, 1, 4.338449),
    Sketcher.Constraint("DistanceX", -1, 1, 12, 3, 12.388852),
    Sketcher.Constraint("DistanceX", -1, 1, 13, 3, 9.600968),
    Sketcher.Constraint("DistanceY", -1, 1, 13, 3, 76.745858),
    Sketcher.Constraint("DistanceY", -1, 1, 14, 3, 106.616039),
    Sketcher.Constraint("DistanceY", -1, 1, 15, 3, 136.48622),
    Sketcher.Constraint("DistanceY", 0, 3, 1, 3, 29.870181),
    Sketcher.Constraint("DistanceX", 2, 3, 1, 3, 4.771678),
    Sketcher.Constraint("DistanceX", 2, 3, 0, 3, 7.559562),
    Sketcher.Constraint("DistanceY", 3, 3, 5, 3, 1.392591),
    Sketcher.Constraint("DistanceY", 4, 3, 5, 3, 56.437188),
    Sketcher.Constraint("DistanceY", 12, 3, 6, 3, 1.52241),
    Sketcher.Constraint("DistanceX", -1, 1, 14, 3, 6.813085),
    Sketcher.Constraint("DistanceX", -1, 1, 16, 3, 1.237318),
])
sketch13.setExpression("Constraints[23]", "Params.sketch13_diameter")
doc.recompute()
hole = doc.addObject("PartDesign::Hole", "Hole")
body.addObject(hole)
hole.Profile = sketch13
hole.ThreadType = "None"
hole.setExpression("Diameter", "Params.hole_diameter")
hole.DepthType = "Dimension"
hole.setExpression("Depth", "Params.hole_depth")
hole.DrillPoint = "Flat"
hole.HoleCutType = "Countersink"
hole.setExpression("HoleCutDiameter", "Params.hole_csink_diameter")
hole.HoleCutCountersinkAngle = 90
hole.Reversed = True

doc.recompute()
